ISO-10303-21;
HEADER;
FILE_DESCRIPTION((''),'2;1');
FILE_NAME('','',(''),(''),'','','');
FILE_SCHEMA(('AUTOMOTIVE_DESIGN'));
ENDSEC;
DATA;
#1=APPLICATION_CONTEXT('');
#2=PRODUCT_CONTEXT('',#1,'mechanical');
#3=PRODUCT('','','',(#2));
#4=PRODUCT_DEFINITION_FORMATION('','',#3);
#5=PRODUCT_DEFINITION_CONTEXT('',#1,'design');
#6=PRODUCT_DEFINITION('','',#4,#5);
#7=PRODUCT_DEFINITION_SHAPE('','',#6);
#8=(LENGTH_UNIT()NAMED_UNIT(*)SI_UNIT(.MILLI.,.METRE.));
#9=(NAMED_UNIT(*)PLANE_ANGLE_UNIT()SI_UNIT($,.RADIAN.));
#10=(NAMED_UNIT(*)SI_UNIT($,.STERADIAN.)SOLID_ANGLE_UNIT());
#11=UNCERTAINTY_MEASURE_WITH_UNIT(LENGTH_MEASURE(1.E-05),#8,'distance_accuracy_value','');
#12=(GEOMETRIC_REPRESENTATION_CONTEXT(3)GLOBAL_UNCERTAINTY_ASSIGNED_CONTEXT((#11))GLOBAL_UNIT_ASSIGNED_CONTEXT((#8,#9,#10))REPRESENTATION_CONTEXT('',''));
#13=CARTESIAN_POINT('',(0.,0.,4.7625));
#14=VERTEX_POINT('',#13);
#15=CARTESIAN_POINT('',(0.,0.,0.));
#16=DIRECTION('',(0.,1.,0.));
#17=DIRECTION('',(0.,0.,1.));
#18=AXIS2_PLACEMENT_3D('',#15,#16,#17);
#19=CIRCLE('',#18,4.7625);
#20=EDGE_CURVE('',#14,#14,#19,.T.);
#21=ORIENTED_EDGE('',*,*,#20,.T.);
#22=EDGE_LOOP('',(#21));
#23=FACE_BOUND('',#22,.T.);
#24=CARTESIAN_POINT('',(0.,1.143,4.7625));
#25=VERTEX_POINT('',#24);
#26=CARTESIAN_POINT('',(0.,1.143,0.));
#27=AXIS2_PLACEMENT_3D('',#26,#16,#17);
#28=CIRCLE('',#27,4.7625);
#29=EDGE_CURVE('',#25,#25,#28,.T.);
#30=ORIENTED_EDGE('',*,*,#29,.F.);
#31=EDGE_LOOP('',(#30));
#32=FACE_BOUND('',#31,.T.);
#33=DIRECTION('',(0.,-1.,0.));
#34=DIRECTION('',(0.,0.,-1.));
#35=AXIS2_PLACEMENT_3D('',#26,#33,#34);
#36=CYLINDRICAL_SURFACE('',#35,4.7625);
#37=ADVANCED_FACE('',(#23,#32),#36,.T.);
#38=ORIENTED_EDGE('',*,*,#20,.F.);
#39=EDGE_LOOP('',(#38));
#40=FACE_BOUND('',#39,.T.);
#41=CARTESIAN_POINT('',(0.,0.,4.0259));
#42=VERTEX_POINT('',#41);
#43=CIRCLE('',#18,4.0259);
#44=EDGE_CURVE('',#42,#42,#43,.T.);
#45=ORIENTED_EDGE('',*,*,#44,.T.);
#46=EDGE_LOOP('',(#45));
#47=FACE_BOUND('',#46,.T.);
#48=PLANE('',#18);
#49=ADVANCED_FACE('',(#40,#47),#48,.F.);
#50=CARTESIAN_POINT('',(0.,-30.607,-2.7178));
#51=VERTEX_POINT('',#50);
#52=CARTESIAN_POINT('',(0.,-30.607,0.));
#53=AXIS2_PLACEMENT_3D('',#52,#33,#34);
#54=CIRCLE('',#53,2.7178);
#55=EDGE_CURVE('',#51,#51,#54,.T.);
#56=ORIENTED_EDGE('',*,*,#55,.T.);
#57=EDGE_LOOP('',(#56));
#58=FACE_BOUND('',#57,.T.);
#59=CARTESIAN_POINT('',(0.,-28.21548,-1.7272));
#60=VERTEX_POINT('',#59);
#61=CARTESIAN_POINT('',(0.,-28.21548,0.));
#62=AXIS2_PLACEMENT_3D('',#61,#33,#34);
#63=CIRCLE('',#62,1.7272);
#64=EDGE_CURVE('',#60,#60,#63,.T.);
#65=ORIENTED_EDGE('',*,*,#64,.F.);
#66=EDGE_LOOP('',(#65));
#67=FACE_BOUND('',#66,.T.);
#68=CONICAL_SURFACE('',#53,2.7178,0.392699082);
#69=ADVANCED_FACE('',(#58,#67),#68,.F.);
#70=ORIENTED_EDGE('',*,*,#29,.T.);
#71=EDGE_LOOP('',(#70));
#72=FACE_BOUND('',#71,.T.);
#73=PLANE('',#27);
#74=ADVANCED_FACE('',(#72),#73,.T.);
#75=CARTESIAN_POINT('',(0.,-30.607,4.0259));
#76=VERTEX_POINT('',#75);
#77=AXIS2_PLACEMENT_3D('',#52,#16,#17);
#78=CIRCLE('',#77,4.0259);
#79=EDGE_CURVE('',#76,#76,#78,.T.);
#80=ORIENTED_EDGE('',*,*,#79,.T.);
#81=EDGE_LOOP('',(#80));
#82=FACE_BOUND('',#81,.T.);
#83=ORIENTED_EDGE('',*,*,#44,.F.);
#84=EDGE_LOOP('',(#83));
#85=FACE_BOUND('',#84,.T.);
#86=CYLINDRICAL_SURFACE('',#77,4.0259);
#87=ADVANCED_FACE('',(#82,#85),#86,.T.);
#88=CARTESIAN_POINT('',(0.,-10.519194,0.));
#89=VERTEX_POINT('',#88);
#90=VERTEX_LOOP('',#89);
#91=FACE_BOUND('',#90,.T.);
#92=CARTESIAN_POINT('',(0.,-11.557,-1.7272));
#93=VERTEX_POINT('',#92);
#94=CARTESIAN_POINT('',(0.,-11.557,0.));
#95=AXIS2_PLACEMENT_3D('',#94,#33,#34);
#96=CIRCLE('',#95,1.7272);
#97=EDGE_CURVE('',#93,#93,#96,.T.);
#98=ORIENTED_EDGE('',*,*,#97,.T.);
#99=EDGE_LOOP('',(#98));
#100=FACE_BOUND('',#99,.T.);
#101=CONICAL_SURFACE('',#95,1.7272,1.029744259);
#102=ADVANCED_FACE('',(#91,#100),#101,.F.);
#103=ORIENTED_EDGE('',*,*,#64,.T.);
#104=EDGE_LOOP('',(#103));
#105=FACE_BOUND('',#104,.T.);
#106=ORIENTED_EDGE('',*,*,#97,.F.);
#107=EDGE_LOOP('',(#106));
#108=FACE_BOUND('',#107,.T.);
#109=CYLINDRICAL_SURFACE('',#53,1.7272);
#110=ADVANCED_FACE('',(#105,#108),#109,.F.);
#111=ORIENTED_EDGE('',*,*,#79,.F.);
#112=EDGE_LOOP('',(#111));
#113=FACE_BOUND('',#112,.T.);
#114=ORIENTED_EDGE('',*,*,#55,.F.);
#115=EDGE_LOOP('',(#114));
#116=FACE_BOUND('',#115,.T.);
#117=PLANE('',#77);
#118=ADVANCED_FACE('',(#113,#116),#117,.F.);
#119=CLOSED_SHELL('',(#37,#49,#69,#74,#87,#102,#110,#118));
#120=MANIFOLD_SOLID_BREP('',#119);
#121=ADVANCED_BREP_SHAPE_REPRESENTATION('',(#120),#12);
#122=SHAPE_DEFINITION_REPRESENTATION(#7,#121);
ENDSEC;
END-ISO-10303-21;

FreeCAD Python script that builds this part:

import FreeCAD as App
import Part
import Sketcher

V = App.Vector
Q = App.Units.Quantity

doc = App.newDocument("Part")
body = doc.addObject("PartDesign::Body", "Body")

# Sketch on XZ plane
sketch1 = body.newObject("Sketcher::SketchObject", "Sketch")
sketch1.AttachmentSupport = (doc.getObject("XZ_Plane"), [""])
sketch1.MapMode = "FlatFace"
sketch1.addGeometry(Part.Circle(V(0, 0, 0), V(0, 0, 1), 4.8), False)
sketch1.addConstraint(Sketcher.Constraint("Coincident", 0, 3, -1, 1))
sketch1.addConstraint(Sketcher.Constraint("Diameter", 0, Q("0.375 in")))
pad1 = body.newObject("PartDesign::Pad", "Pad")
pad1.Profile = sketch1
pad1.Length = Q("0.045 in")
pad1.Reversed = True

# Sketch on XZ plane
sketch2 = body.newObject("Sketcher::SketchObject", "Sketch001")
sketch2.AttachmentSupport = (doc.getObject("XZ_Plane"), [""])
sketch2.MapMode = "FlatFace"
sketch2.AttachmentOffset = App.Placement(V(0, 0, -0.045 * 25.4), App.Rotation())
sketch2.addGeometry(Part.Circle(V(0, 0, 0), V(0, 0, 1), 4), False)
sketch2.addConstraint(Sketcher.Constraint("Coincident", 0, 3, -1, 1))
sketch2.addConstraint(Sketcher.Constraint("Diameter", 0, Q("0.317 in")))
pad2 = body.newObject("PartDesign::Pad", "Pad001")
pad2.Profile = sketch2
pad2.Length = Q("1.25 in")

# Sketch on XZ plane
sketch3 = body.newObject("Sketcher::SketchObject", "Sketch002")
sketch3.AttachmentSupport = (doc.getObject("XZ_Plane"), [""])
sketch3.MapMode = "FlatFace"
sketch3.AttachmentOffset = App.Placement(V(0, 0, 1.205 * 25.4), App.Rotation())
sketch3.addGeometry(Part.Circle(V(0, 0, 0), V(0, 0, 1), 1.7), False)
sketch3.addConstraint(Sketcher.Constraint("Coincident", 0, 3, -1, 1))
sketch3.addConstraint(Sketcher.Constraint("Diameter", 0, Q("0.136 in")))
doc.recompute()
hole = body.newObject("PartDesign::Hole", "Hole")
hole.Profile = sketch3
hole.ThreadType = "None"
hole.Diameter = Q("0.136 in")
hole.DepthType = "Dimension"
hole.Depth = Q("0.75 in")
hole.DrillPoint = "Angled"
hole.DrillPointAngle = 118
hole.HoleCutType = "Countersink"
hole.HoleCutDiameter = Q("0.214 in")
hole.HoleCutCountersinkAngle = 45

doc.recompute()
